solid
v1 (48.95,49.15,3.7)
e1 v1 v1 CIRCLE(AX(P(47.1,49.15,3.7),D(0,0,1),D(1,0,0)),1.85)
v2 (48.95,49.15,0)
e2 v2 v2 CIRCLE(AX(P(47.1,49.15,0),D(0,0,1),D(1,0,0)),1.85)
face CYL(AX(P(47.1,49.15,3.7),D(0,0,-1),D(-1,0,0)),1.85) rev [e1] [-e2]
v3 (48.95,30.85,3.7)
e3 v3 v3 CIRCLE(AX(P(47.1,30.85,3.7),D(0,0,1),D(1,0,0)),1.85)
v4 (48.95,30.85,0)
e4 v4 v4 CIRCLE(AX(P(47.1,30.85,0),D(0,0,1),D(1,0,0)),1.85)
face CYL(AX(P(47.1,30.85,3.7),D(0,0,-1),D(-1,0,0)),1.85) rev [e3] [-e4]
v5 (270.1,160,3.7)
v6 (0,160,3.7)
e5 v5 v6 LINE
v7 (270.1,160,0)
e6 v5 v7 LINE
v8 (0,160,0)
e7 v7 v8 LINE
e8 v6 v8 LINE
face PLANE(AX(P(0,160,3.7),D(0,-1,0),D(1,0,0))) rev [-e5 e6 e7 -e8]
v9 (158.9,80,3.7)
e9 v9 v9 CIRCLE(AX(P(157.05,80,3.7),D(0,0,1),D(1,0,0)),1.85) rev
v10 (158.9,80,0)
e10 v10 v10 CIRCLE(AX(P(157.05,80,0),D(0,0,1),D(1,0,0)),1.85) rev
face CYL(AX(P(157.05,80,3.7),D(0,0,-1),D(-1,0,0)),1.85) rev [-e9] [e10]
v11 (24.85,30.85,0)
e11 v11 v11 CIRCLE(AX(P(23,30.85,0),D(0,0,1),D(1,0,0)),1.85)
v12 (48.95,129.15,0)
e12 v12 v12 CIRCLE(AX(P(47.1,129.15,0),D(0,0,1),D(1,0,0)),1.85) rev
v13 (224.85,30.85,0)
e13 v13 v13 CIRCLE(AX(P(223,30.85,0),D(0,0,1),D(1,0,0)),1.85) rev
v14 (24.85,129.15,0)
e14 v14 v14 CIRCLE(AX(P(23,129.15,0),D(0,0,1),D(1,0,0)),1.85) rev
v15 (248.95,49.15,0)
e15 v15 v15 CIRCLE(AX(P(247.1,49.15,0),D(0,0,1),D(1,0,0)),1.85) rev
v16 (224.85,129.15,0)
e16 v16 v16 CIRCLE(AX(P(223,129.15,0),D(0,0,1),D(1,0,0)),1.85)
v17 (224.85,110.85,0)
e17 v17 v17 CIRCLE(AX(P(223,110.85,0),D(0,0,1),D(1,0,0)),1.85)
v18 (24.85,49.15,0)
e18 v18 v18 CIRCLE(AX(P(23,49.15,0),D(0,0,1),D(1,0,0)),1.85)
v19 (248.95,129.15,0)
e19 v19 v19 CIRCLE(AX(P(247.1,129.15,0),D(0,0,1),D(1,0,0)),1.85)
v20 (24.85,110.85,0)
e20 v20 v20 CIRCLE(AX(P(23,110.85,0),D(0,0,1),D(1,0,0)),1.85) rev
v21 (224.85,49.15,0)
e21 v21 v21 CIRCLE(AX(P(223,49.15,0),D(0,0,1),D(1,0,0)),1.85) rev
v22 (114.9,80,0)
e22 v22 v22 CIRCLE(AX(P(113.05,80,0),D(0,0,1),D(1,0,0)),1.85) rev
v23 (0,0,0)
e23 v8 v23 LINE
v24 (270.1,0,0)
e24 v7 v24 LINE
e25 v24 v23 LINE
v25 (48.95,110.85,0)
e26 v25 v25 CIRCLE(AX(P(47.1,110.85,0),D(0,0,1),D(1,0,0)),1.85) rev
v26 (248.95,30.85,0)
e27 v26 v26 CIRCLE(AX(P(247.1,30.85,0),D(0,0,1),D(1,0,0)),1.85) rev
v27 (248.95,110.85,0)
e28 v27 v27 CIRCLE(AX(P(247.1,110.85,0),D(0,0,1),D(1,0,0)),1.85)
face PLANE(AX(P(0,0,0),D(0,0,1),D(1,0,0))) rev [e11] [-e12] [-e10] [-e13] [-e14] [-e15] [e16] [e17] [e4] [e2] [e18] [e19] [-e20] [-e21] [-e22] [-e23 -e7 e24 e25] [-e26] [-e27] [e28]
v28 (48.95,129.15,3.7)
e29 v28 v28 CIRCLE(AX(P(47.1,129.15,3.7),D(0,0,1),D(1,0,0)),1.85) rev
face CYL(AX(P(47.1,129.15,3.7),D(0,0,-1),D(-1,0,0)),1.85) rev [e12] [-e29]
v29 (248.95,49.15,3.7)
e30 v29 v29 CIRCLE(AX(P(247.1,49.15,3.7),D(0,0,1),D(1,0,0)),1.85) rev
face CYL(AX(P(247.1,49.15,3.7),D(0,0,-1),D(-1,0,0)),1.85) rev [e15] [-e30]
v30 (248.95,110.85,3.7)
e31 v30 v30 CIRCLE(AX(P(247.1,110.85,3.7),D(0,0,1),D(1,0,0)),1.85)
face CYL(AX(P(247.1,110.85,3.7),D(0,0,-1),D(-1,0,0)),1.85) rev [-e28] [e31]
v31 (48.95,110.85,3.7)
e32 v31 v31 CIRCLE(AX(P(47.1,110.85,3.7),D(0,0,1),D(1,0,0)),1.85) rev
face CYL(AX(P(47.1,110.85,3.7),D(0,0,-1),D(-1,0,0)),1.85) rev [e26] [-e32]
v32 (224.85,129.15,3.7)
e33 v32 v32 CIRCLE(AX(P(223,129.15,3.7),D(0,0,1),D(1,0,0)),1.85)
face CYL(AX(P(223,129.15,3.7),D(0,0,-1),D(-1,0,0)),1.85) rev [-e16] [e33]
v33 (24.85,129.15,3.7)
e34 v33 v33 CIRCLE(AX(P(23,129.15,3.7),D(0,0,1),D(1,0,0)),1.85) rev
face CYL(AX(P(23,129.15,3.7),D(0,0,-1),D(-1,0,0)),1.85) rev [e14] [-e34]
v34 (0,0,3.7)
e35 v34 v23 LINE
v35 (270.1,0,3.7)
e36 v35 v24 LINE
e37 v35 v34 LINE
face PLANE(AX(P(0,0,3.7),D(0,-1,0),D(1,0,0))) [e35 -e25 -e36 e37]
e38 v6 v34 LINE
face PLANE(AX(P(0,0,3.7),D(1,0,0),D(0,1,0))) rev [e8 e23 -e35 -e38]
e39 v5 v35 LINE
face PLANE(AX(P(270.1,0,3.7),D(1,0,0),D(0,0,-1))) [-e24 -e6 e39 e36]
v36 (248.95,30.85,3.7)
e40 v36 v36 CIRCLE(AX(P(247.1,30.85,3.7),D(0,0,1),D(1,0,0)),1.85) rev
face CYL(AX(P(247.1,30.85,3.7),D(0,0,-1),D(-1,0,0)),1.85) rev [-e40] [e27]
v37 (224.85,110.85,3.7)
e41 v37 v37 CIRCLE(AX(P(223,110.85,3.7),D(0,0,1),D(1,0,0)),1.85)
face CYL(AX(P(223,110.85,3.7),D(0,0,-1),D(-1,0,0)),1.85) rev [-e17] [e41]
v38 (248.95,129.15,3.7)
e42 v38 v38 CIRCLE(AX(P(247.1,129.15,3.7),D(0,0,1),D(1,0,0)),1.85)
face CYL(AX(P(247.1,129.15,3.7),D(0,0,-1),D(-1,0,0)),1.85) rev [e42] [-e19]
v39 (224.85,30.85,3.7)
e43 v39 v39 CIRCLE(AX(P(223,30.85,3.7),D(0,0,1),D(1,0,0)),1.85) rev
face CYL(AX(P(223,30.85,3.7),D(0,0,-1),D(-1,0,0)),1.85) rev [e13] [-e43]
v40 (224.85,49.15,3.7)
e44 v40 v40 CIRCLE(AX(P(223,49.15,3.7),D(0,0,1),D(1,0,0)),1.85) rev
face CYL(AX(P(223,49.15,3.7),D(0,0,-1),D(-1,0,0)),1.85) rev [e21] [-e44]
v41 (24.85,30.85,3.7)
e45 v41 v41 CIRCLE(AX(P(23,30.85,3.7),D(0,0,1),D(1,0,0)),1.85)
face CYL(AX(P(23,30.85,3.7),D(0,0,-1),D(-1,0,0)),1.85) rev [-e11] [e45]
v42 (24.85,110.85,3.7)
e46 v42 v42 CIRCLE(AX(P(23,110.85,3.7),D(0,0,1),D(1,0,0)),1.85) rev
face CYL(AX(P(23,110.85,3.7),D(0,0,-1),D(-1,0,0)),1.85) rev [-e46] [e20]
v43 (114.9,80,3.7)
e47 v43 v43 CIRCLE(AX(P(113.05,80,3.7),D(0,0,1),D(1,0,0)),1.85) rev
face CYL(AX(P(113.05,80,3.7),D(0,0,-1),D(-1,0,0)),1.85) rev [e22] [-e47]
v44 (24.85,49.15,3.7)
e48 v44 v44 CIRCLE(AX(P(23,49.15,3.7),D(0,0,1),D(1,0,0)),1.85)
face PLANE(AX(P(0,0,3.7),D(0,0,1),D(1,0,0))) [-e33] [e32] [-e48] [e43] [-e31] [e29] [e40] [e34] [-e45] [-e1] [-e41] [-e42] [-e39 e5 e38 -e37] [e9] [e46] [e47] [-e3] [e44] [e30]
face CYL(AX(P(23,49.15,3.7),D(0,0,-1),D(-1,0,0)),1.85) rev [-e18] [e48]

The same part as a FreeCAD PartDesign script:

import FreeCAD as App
import Part
import Sketcher
Q = App.Units.Quantity


def add_polygon(sketch, points):
    """Adds a closed chain of lines whose ends are joined by coincident constraints."""
    first, n = sketch.GeometryCount, len(points)
    for a, b in zip(points, points[1:] + points[:1]):
        sketch.addGeometry(Part.LineSegment(App.Vector(*a, 0), App.Vector(*b, 0)), False)
    for i in range(n):
        sketch.addConstraint(Sketcher.Constraint("Coincident", first + i, 2, first + (i + 1) % n, 1))

doc = App.newDocument("Part")
params = doc.addObject("Spreadsheet::Sheet", "Params")
for row, (alias, value) in enumerate([
    ("sketch1_diameter", "3.7 mm"),
    ("sketch1_height", "160 mm"),
    ("sketch1_width", "270.1 mm"),
    ("pad1_length", "3.7 mm"),
], start=1):
    params.set(f"A{row}", alias)
    params.set(f"B{row}", "=" + value)
    params.setAlias(f"B{row}", alias)

body = doc.addObject("PartDesign::Body", "Body")

# Sketch on XY plane
sketch1 = doc.addObject("Sketcher::SketchObject", "Sketch")
body.addObject(sketch1)
sketch1.AttachmentSupport = (doc.XY_Plane, [""])
sketch1.MapMode = "FlatFace"
add_polygon(sketch1, [(0, 160), (0, 0), (270.1, 0), (270.1, 160)])  # lines 0-3
sketch1.addGeometry(Part.Circle(App.Vector(23, 30.9, 0), App.Vector(0, 0, 1), 1.9), False)  # 4
sketch1.addGeometry(Part.Circle(App.Vector(47.1, 30.9, 0), App.Vector(0, 0, 1), 1.9), False)  # 5
sketch1.addGeometry(Part.Circle(App.Vector(23, 49.1, 0), App.Vector(0, 0, 1), 1.9), False)  # 6
sketch1.addGeometry(Part.Circle(App.Vector(47.1, 49.1, 0), App.Vector(0, 0, 1), 1.9), False)  # 7
sketch1.addGeometry(Part.Circle(App.Vector(113, 80, 0), App.Vector(0, 0, 1), 1.9), False)  # 8
sketch1.addGeometry(Part.Circle(App.Vector(223, 30.9, 0), App.Vector(0, 0, 1), 1.9), False)  # 9
sketch1.addGeometry(Part.Circle(App.Vector(247.1, 30.9, 0), App.Vector(0, 0, 1), 1.9), False)  # 10
sketch1.addGeometry(Part.Circle(App.Vector(223, 49.1, 0), App.Vector(0, 0, 1), 1.9), False)  # 11
sketch1.addGeometry(Part.Circle(App.Vector(247.1, 49.1, 0), App.Vector(0, 0, 1), 1.9), False)  # 12
sketch1.addGeometry(Part.Circle(App.Vector(157.1, 80, 0), App.Vector(0, 0, 1), 1.9), False)  # 13
sketch1.addGeometry(Part.Circle(App.Vector(23, 110.8, 0), App.Vector(0, 0, 1), 1.9), False)  # 14
sketch1.addGeometry(Part.Circle(App.Vector(47.1, 110.8, 0), App.Vector(0, 0, 1), 1.9), False)  # 15
sketch1.addGeometry(Part.Circle(App.Vector(23, 129.2, 0), App.Vector(0, 0, 1), 1.9), False)  # 16
sketch1.addGeometry(Part.Circle(App.Vector(47.1, 129.2, 0), App.Vector(0, 0, 1), 1.9), False)  # 17
sketch1.addGeometry(Part.Circle(App.Vector(223, 110.8, 0), App.Vector(0, 0, 1), 1.9), False)  # 18
sketch1.addGeometry(Part.Circle(App.Vector(247.1, 110.8, 0), App.Vector(0, 0, 1), 1.9), False)  # 19
sketch1.addGeometry(Part.Circle(App.Vector(223, 129.2, 0), App.Vector(0, 0, 1), 1.9), False)  # 20
sketch1.addGeometry(Part.Circle(App.Vector(247.1, 129.2, 0), App.Vector(0, 0, 1), 1.9), False)  # 21
sketch1.addConstraint(Sketcher.Constraint("Vertical", 0))
sketch1.addConstraint(Sketcher.Constraint("Horizontal", 1))
sketch1.addConstraint(Sketcher.Constraint("Vertical", 2))
sketch1.addConstraint(Sketcher.Constraint("Horizontal", 3))
sketch1.addConstraint(Sketcher.Constraint("Coincident", 0, 2, -1, 1))
sketch1.addConstraint(Sketcher.Constraint("Equal", 4, 5))
sketch1.addConstraint(Sketcher.Constraint("Equal", 5, 6))
sketch1.addConstraint(Sketcher.Constraint("Equal", 6, 7))
sketch1.addConstraint(Sketcher.Constraint("Equal", 7, 8))
sketch1.addConstraint(Sketcher.Constraint("Equal", 8, 9))
sketch1.addConstraint(Sketcher.Constraint("Equal", 9, 10))
sketch1.addConstraint(Sketcher.Constraint("Equal", 10, 11))
sketch1.addConstraint(Sketcher.Constraint("Equal", 11, 12))
sketch1.addConstraint(Sketcher.Constraint("Equal", 12, 13))
sketch1.addConstraint(Sketcher.Constraint("Equal", 13, 14))
sketch1.addConstraint(Sketcher.Constraint("Equal", 14, 15))
sketch1.addConstraint(Sketcher.Constraint("Equal", 15, 16))
sketch1.addConstraint(Sketcher.Constraint("Equal", 16, 17))
sketch1.addConstraint(Sketcher.Constraint("Equal", 17, 18))
sketch1.addConstraint(Sketcher.Constraint("Equal", 18, 19))
sketch1.addConstraint(Sketcher.Constraint("Equal", 19, 20))
sketch1.addConstraint(Sketcher.Constraint("Equal", 20, 21))
sketch1.addConstraint(Sketcher.Constraint("Horizontal", 4, 3, 5, 3))
sketch1.addConstraint(Sketcher.Constraint("Horizontal", 6, 3, 7, 3))
sketch1.addConstraint(Sketcher.Constraint("Horizontal", 5, 3, 9, 3))
sketch1.addConstraint(Sketcher.Constraint("Horizontal", 9, 3, 10, 3))
sketch1.addConstraint(Sketcher.Constraint("Horizontal", 7, 3, 11, 3))
sketch1.addConstraint(Sketcher.Constraint("Horizontal", 11, 3, 12, 3))
sketch1.addConstraint(Sketcher.Constraint("Horizontal", 8, 3, 13, 3))
sketch1.addConstraint(Sketcher.Constraint("Horizontal", 14, 3, 15, 3))
sketch1.addConstraint(Sketcher.Constraint("Horizontal", 16, 3, 17, 3))
sketch1.addConstraint(Sketcher.Constraint("Horizontal", 15, 3, 18, 3))
sketch1.addConstraint(Sketcher.Constraint("Horizontal", 18, 3, 19, 3))
sketch1.addConstraint(Sketcher.Constraint("Horizontal", 17, 3, 20, 3))
sketch1.addConstraint(Sketcher.Constraint("Horizontal", 20, 3, 21, 3))
sketch1.addConstraint(Sketcher.Constraint("Vertical", 4, 3, 6, 3))
sketch1.addConstraint(Sketcher.Constraint("Vertical", 5, 3, 7, 3))
sketch1.addConstraint(Sketcher.Constraint("Vertical", 9, 3, 11, 3))
sketch1.addConstraint(Sketcher.Constraint("Vertical", 10, 3, 12, 3))
sketch1.addConstraint(Sketcher.Constraint("Vertical", 6, 3, 14, 3))
sketch1.addConstraint(Sketcher.Constraint("Vertical", 7, 3, 15, 3))
sketch1.addConstraint(Sketcher.Constraint("Vertical", 14, 3, 16, 3))
sketch1.addConstraint(Sketcher.Constraint("Vertical", 15, 3, 17, 3))
sketch1.addConstraint(Sketcher.Constraint("Vertical", 11, 3, 18, 3))
sketch1.addConstraint(Sketcher.Constraint("Vertical", 12, 3, 19, 3))
sketch1.addConstraint(Sketcher.Constraint("Vertical", 18, 3, 20, 3))
sketch1.addConstraint(Sketcher.Constraint("Vertical", 19, 3, 21, 3))
sketch1.addConstraint(Sketcher.Constraint("Diameter", 4, Q("3.7 mm")))
sketch1.addConstraint(Sketcher.Constraint("DistanceY", 0, 2, 0, 1, Q("160 mm")))
sketch1.addConstraint(Sketcher.Constraint("DistanceX", 1, 1, 1, 2, Q("270.1 mm")))
sketch1.addConstraint(Sketcher.Constraint("DistanceX", -1, 1, 4, 3, Q("23 mm")))
sketch1.addConstraint(Sketcher.Constraint("DistanceY", -1, 1, 8, 3, Q("80 mm")))
sketch1.addConstraint(Sketcher.Constraint("DistanceX", -1, 1, 9, 3, Q("223 mm")))
sketch1.addConstraint(Sketcher.Constraint("DistanceX", 5, 3, 10, 3, Q("200 mm")))
sketch1.addConstraint(Sketcher.Constraint("DistanceX", 8, 3, 13, 3, Q("44 mm")))
sketch1.addConstraint(Sketcher.Constraint("DistanceY", 4, 3, 14, 3, Q("80 mm")))
sketch1.addConstraint(Sketcher.Constraint("DistanceY", 6, 3, 16, 3, Q("80 mm")))
sketch1.addConstraint(Sketcher.Constraint("DistanceX", 10, 3, 1, 2, Q("23 mm")))
sketch1.addConstraint(Sketcher.Constraint("DistanceY", 4, 3, 6, 3, Q("18.3 mm")))
sketch1.addConstraint(Sketcher.Constraint("DistanceY", -1, 1, 4, 3, Q("30.85 mm")))
sketch1.addConstraint(Sketcher.Constraint("DistanceX", -1, 1, 8, 3, Q("113.05 mm")))
sketch1.setExpression("Constraints[51]", "Params.sketch1_diameter")
sketch1.setExpression("Constraints[52]", "Params.sketch1_height")
sketch1.setExpression("Constraints[53]", "Params.sketch1_width")
pad1 = doc.addObject("PartDesign::Pad", "Pad")
body.addObject(pad1)
pad1.Profile = sketch1
pad1.setExpression("Length", "Params.pad1_length")

doc.recompute()
